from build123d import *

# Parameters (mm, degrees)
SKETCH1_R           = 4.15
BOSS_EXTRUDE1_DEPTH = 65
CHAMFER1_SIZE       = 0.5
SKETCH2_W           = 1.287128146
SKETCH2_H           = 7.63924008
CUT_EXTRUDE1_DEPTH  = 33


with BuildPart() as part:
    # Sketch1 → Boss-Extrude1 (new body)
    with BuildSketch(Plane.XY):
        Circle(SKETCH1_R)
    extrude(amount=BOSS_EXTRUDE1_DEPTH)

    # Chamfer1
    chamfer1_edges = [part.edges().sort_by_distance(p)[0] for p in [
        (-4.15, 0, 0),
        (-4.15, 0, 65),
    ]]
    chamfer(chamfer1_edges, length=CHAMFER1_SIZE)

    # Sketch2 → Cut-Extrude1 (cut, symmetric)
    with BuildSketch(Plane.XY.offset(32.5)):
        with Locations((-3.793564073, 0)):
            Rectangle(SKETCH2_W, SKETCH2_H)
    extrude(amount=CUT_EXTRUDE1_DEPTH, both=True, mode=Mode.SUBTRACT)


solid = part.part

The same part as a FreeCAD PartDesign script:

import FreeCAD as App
import Part
import Sketcher

V = App.Vector


def edges_at(feature, points):
    """Names of the edges that pass closest to the given points."""
    edges = feature.Shape.Edges
    near = lambda p: min(range(len(edges)), key=lambda i: edges[i].distToShape(Part.Vertex(*p))[0])
    return sorted({f"Edge{near(p) + 1}" for p in points})


def add_polygon(sketch, points):
    """Adds a closed chain of lines whose ends are joined by coincident constraints."""
    first, n = sketch.GeometryCount, len(points)
    for a, b in zip(points, points[1:] + points[:1]):
        sketch.addGeometry(Part.LineSegment(App.Vector(*a, 0), App.Vector(*b, 0)), False)
    for i in range(n):
        sketch.addConstraint(Sketcher.Constraint("Coincident", first + i, 2, first + (i + 1) % n, 1))

doc = App.newDocument("Part")
body = doc.addObject("PartDesign::Body", "Body")

sketch1 = body.newObject("Sketcher::SketchObject", "Sketch")
sketch1.AttachmentSupport = (doc.getObject("XY_Plane"), [""])
sketch1.MapMode = "FlatFace"
sketch1.addGeometry(Part.Circle(V(0, 0, 0), V(0, 0, 1), 4.2), False)
sketch1.addConstraint(Sketcher.Constraint("Coincident", 0, 3, -1, 1))
sketch1.addConstraint(Sketcher.Constraint("Diameter", 0, 8.3))
pad1 = body.newObject("PartDesign::Pad", "Pad")
pad1.Profile = sketch1
pad1.Length = 65
doc.recompute()

chamfer = body.newObject("PartDesign::Chamfer", "Chamfer")
chamfer.Base = (pad1, edges_at(pad1, [(-4.15, 0, 0), (-4.15, 0, 65)]))
chamfer.Size = 0.5

sketch2 = body.newObject("Sketcher::SketchObject", "Sketch001")
sketch2.AttachmentSupport = (doc.getObject("XY_Plane"), [""])
sketch2.MapMode = "FlatFace"
sketch2.AttachmentOffset = App.Placement(V(0, 0, 32.5), App.Rotation())
add_polygon(sketch2, [(-4.4, 3.8), (-4.4, -3.8), (-3.1, -3.8), (-3.1, 3.8)])
sketch2.addConstraint(Sketcher.Constraint("Vertical", 0))
sketch2.addConstraint(Sketcher.Constraint("Horizontal", 1))
sketch2.addConstraint(Sketcher.Constraint("Vertical", 2))
sketch2.addConstraint(Sketcher.Constraint("Horizontal", 3))
sketch2.addConstraint(Sketcher.Constraint("DistanceX", 1, 2, -1, 1, 3.15))
sketch2.addConstraint(Sketcher.Constraint("DistanceX", 1, 1, 1, 2, 1.287128))
sketch2.addConstraint(Sketcher.Constraint("DistanceY", 0, 2, 0, 1, 7.63924))
sketch2.addConstraint(Sketcher.Constraint("DistanceY", 0, 2, -1, 1, 3.81962))
pocket1 = body.newObject("PartDesign::Pocket", "Pocket")
pocket1.Profile = sketch2
pocket1.Length = 66
pocket1.Midplane = True

doc.recompute()
